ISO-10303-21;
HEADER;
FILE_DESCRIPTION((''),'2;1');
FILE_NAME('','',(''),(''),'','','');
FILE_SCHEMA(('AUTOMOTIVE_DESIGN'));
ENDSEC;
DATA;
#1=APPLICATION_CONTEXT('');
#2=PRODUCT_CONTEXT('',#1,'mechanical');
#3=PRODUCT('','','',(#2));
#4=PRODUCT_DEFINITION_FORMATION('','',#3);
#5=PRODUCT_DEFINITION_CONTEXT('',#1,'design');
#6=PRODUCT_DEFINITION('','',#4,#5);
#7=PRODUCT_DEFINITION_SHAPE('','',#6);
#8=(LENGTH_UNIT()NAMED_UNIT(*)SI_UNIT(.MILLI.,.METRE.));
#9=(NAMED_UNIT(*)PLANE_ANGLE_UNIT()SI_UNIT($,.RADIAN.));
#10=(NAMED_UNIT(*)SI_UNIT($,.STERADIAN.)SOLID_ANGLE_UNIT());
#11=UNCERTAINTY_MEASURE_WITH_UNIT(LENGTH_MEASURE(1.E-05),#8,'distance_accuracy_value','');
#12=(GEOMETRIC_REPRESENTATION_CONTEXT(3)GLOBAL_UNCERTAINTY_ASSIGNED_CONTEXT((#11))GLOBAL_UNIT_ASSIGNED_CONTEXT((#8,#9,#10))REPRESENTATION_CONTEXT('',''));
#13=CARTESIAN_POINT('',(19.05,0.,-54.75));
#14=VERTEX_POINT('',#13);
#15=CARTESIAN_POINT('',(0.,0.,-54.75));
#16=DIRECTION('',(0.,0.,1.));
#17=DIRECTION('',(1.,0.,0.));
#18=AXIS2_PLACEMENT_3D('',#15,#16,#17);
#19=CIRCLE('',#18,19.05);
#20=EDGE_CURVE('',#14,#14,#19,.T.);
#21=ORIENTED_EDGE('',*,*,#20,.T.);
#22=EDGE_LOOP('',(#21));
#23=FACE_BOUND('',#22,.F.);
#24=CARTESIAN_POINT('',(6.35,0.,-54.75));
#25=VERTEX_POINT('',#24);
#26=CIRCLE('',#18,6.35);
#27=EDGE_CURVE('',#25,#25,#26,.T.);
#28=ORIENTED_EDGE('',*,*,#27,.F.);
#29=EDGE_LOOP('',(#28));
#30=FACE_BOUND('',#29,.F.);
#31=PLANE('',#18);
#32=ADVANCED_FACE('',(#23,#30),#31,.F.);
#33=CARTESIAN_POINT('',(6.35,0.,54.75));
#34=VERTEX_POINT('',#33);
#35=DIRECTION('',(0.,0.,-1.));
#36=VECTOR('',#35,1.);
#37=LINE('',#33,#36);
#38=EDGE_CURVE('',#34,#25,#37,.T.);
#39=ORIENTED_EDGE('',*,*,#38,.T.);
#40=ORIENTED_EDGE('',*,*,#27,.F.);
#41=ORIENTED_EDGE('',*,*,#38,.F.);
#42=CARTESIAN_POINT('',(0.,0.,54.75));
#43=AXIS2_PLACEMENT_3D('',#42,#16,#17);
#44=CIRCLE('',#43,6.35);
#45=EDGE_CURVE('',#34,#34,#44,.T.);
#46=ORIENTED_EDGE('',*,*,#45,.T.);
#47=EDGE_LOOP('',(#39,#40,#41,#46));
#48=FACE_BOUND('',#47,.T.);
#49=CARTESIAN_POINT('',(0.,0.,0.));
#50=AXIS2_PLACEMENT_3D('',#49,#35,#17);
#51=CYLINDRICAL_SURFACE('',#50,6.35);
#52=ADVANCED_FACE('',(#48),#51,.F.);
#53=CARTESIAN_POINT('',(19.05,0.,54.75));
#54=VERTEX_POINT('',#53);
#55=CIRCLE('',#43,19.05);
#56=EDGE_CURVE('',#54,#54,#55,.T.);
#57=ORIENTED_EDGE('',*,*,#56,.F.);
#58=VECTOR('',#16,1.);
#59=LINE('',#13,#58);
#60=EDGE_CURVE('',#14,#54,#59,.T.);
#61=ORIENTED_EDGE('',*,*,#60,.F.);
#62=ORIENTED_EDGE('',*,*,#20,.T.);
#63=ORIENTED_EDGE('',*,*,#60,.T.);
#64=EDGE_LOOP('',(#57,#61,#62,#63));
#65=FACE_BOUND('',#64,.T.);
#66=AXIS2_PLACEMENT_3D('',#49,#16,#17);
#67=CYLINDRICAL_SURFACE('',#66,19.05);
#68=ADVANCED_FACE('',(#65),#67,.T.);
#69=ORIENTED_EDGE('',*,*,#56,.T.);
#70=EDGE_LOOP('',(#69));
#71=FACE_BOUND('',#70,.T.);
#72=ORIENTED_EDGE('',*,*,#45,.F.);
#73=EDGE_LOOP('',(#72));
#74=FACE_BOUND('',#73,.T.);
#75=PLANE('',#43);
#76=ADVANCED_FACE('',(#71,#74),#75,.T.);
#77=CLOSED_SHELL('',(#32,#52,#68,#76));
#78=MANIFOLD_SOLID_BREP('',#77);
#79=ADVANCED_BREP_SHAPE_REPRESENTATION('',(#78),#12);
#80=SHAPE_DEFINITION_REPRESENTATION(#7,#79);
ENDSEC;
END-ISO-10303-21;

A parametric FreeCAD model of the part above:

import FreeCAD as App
import Part
import Sketcher

V = App.Vector
Q = App.Units.Quantity

doc = App.newDocument("Part")
params = doc.addObject("Spreadsheet::Sheet", "Params")
for row, (alias, value) in enumerate([
    ("sketch1_diameter", "1.5 in"),
    ("sketch1_diameter2", "0.5 in"),
    ("pad1_length", "109.5 mm"),
], start=1):
    params.set(f"A{row}", alias)
    params.set(f"B{row}", "=" + value)
    params.setAlias(f"B{row}", alias)

body = doc.addObject("PartDesign::Body", "Body")

# Sketch on XY plane
sketch1 = doc.addObject("Sketcher::SketchObject", "Sketch")
body.addObject(sketch1)
sketch1.AttachmentSupport = (doc.XY_Plane, [""])
sketch1.MapMode = "FlatFace"
sketch1.addGeometry([
    Part.Circle(V(0, 0, 0), V(0, 0, 1), 19.05),
    Part.Circle(V(0, 0, 0), V(0, 0, 1), 6.35),
], False)
sketch1.addConstraint([
    Sketcher.Constraint("Coincident", 0, 3, -1, 1),
    Sketcher.Constraint("Coincident", 1, 3, -1, 1),
    Sketcher.Constraint("Diameter", 0, Q("1.5 in")),
    Sketcher.Constraint("Diameter", 1, Q("0.5 in")),
])
sketch1.setExpression("Constraints[2]", "Params.sketch1_diameter")
sketch1.setExpression("Constraints[3]", "Params.sketch1_diameter2")
pad1 = doc.addObject("PartDesign::Pad", "Pad")
body.addObject(pad1)
pad1.Profile = sketch1
pad1.setExpression("Length", "Params.pad1_length")
pad1.Midplane = True

doc.recompute()
